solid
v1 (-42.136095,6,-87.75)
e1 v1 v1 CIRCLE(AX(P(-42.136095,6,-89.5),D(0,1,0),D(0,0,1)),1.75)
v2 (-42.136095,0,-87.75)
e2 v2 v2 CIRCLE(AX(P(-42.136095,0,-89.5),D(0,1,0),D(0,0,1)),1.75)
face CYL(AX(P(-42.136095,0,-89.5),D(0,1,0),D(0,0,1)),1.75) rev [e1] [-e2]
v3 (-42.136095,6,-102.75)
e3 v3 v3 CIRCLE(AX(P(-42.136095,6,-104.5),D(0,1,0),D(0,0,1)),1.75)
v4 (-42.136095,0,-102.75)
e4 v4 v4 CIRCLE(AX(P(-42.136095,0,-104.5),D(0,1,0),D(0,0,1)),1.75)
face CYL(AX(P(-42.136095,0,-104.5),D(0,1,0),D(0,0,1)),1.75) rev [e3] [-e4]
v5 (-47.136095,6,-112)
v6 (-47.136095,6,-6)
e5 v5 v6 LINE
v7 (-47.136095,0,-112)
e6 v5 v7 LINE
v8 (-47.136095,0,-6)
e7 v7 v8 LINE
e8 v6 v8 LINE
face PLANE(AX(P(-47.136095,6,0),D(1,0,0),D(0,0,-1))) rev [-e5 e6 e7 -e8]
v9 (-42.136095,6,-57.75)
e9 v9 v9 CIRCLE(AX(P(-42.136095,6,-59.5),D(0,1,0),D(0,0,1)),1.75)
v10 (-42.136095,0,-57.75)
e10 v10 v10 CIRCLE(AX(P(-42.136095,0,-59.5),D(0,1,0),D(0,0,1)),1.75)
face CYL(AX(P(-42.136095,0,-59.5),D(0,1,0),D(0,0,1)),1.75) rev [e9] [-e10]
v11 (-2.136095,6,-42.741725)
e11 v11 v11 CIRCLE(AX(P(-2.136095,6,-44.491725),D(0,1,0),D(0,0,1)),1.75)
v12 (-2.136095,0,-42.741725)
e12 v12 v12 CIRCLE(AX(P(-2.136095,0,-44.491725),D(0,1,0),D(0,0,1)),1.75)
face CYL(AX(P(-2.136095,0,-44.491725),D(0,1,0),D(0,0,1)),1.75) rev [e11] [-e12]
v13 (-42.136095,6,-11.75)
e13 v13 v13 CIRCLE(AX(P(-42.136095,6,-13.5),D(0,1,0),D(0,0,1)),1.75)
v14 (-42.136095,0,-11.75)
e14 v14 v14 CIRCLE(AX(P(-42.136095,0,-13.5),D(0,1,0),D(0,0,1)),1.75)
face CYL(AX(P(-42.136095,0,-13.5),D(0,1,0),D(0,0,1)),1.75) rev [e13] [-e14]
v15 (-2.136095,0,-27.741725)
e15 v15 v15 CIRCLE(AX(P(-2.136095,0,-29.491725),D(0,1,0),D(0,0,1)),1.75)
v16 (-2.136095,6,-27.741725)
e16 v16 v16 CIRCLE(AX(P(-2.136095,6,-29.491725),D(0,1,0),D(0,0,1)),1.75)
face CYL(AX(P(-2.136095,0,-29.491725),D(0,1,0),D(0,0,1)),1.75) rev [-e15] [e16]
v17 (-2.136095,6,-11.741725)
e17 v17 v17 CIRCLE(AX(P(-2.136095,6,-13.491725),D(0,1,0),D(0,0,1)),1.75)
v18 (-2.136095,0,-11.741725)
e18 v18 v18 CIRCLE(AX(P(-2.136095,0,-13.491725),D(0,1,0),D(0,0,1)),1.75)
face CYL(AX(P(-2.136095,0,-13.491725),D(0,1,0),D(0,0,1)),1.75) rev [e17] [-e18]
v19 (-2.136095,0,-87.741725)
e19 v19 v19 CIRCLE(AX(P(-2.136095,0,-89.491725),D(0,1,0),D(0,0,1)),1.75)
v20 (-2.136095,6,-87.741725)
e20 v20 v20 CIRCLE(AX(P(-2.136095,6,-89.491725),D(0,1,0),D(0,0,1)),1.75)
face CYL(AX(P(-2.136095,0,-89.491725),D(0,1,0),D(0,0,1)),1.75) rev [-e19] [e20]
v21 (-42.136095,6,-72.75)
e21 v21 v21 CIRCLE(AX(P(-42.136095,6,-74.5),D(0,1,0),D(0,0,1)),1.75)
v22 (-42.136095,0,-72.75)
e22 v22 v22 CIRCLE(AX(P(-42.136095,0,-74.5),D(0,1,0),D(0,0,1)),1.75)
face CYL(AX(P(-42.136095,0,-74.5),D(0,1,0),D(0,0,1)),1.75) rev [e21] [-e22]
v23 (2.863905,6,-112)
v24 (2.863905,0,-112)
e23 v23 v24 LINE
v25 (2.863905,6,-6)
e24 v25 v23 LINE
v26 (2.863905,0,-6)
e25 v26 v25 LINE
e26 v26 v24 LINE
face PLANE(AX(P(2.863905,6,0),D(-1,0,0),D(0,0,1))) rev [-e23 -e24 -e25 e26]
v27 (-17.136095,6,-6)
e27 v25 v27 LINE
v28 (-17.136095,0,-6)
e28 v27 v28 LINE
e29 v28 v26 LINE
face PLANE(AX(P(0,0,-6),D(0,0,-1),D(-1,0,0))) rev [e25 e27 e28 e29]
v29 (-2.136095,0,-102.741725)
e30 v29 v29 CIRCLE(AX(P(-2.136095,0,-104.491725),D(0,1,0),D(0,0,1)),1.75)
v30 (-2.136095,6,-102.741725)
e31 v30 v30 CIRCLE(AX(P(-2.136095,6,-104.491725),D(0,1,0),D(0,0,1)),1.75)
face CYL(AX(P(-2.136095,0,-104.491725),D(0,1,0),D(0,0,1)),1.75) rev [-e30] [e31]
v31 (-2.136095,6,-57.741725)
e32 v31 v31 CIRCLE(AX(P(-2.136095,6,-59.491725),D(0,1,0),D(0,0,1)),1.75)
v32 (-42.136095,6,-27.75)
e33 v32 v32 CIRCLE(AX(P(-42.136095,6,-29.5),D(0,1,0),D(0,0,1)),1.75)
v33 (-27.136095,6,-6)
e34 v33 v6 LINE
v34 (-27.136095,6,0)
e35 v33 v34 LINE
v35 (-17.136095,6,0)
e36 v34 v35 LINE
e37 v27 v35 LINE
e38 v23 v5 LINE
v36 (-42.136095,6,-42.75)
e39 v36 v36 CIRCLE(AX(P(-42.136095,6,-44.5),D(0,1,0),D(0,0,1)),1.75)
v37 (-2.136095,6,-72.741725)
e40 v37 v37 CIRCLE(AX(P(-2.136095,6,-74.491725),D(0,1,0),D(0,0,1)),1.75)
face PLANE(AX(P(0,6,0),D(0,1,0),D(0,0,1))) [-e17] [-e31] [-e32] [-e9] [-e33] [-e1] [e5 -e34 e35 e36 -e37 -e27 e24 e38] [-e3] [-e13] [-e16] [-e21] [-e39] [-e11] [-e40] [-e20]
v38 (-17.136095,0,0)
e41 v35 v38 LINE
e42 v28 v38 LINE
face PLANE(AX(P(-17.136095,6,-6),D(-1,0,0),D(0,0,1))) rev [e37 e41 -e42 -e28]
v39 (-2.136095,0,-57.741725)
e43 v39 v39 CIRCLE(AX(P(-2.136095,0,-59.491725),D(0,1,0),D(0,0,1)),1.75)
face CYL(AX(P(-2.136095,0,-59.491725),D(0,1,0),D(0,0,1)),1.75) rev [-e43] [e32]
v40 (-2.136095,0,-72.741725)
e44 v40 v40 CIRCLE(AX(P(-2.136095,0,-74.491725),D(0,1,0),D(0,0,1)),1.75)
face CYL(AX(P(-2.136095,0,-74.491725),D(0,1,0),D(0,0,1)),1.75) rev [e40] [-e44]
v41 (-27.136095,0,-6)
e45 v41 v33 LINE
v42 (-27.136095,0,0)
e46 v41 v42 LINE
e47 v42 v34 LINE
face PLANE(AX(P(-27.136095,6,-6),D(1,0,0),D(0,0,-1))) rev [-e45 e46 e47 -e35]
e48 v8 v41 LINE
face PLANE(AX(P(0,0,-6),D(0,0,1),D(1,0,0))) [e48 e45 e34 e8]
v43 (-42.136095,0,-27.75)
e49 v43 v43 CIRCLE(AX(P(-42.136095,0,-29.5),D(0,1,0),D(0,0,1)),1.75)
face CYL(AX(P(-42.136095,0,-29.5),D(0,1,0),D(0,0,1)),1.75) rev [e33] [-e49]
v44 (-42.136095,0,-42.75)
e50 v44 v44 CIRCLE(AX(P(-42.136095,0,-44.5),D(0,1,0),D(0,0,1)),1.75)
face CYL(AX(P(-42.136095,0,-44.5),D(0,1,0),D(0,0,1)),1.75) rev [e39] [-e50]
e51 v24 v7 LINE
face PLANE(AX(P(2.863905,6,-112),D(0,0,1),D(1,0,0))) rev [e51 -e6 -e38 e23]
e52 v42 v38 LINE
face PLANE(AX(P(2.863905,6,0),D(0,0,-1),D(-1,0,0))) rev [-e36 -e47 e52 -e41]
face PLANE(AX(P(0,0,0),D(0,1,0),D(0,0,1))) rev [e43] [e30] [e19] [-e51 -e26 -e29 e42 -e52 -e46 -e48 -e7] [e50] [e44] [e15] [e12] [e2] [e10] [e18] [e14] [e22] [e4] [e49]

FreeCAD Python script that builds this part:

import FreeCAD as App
import Part
import Sketcher

V = App.Vector


def add_polygon(sketch, points):
    """Adds a closed chain of lines whose ends are joined by coincident constraints."""
    first, n = sketch.GeometryCount, len(points)
    for a, b in zip(points, points[1:] + points[:1]):
        sketch.addGeometry(Part.LineSegment(App.Vector(*a, 0), App.Vector(*b, 0)), False)
    for i in range(n):
        sketch.addConstraint(Sketcher.Constraint("Coincident", first + i, 2, first + (i + 1) % n, 1))

doc = App.newDocument("Part")
params = doc.addObject("Spreadsheet::Sheet", "Params")
for row, (alias, value) in enumerate([
    ("sketch1_width", "50 mm"),
    ("sketch1_height", "112 mm"),
    ("pad1_length", "6 mm"),
    ("sketch2_width", "20 mm"),
    ("sketch2_height", "6 mm"),
    ("pocket1_length", "6 mm"),
    ("sketch3_diameter", "3.5 mm"),
    ("pocket2_length", "6 mm"),
], start=1):
    params.set(f"A{row}", alias)
    params.set(f"B{row}", "=" + value)
    params.setAlias(f"B{row}", alias)

body = doc.addObject("PartDesign::Body", "Body")

sketch1 = body.newObject("Sketcher::SketchObject", "Sketch")
sketch1.AttachmentSupport = (doc.getObject("XZ_Plane"), [""])
sketch1.MapMode = "FlatFace"
add_polygon(sketch1, [(-47, -112), (-47, 0), (3, 0), (3, -112)])
sketch1.addConstraint([
    Sketcher.Constraint("Vertical", 0),
    Sketcher.Constraint("Horizontal", 1),
    Sketcher.Constraint("Vertical", 2),
    Sketcher.Constraint("Horizontal", 3),
    Sketcher.Constraint("PointOnObject", 0, 2, -1),
    Sketcher.Constraint("DistanceX", 1, 1, 1, 2, 50.0),
    Sketcher.Constraint("DistanceY", 0, 1, 0, 2, 112.0),
    Sketcher.Constraint("DistanceX", 0, 2, -1, 1, 47.136095),
])
sketch1.setExpression("Constraints[9]", "Params.sketch1_width")
sketch1.setExpression("Constraints[10]", "Params.sketch1_height")
pad1 = body.newObject("PartDesign::Pad", "Pad")
pad1.Profile = sketch1
pad1.setExpression("Length", "Params.pad1_length")
pad1.Reversed = True

sketch2 = body.newObject("Sketcher::SketchObject", "Sketch001")
sketch2.AttachmentSupport = (doc.getObject("XY_Plane"), [""])
sketch2.MapMode = "FlatFace"
add_polygon(sketch2, [(-47, 6), (-47, 0), (-27, 0), (-27, 6)])
add_polygon(sketch2, [(-17, 6), (-17, 0), (3, 0), (3, 6)])
sketch2.addConstraint([
    Sketcher.Constraint("Vertical", 0),
    Sketcher.Constraint("Horizontal", 1),
    Sketcher.Constraint("Vertical", 2),
    Sketcher.Constraint("Horizontal", 3),
    Sketcher.Constraint("Vertical", 4),
    Sketcher.Constraint("Horizontal", 5),
    Sketcher.Constraint("Vertical", 6),
    Sketcher.Constraint("Horizontal", 7),
    Sketcher.Constraint("PointOnObject", 0, 2, -1),
    Sketcher.Constraint("PointOnObject", 4, 2, -1),
    Sketcher.Constraint("Horizontal", 3, 2, 6, 2),
    Sketcher.Constraint("Equal", 3, 5),
    Sketcher.Constraint("DistanceX", 1, 1, 1, 2, 20.0),
    Sketcher.Constraint("DistanceY", 0, 2, 0, 1, 6.0),
    Sketcher.Constraint("DistanceX", 1, 2, 4, 2, 10.0),
    Sketcher.Constraint("DistanceX", 0, 2, -1, 1, 47.136095),
])
sketch2.setExpression("Constraints[20]", "Params.sketch2_width")
sketch2.setExpression("Constraints[21]", "Params.sketch2_height")
pocket1 = body.newObject("PartDesign::Pocket", "Pocket")
pocket1.Profile = sketch2
pocket1.setExpression("Length", "Params.pocket1_length")

sketch3 = body.newObject("Sketcher::SketchObject", "Sketch002")
sketch3.AttachmentSupport = (doc.getObject("XZ_Plane"), [""])
sketch3.MapMode = "FlatFace"
sketch3.AttachmentOffset = App.Placement(V(0, 0, -6), App.Rotation())
sketch3.addGeometry([
    Part.Circle(V(-42.1, -104.5, 0), V(0, 0, 1), 1.8),
    Part.Circle(V(-42.1, -89.5, 0), V(0, 0, 1), 1.8),
    Part.Circle(V(-42.1, -74.5, 0), V(0, 0, 1), 1.8),
    Part.Circle(V(-42.1, -59.5, 0), V(0, 0, 1), 1.8),
    Part.Circle(V(-42.1, -44.5, 0), V(0, 0, 1), 1.8),
    Part.Circle(V(-42.1, -13.5, 0), V(0, 0, 1), 1.8),
    Part.Circle(V(-42.1, -29.5, 0), V(0, 0, 1), 1.8),
    Part.Circle(V(-2.1, -104.5, 0), V(0, 0, 1), 1.8),
    Part.Circle(V(-2.1, -89.5, 0), V(0, 0, 1), 1.8),
    Part.Circle(V(-2.1, -74.5, 0), V(0, 0, 1), 1.8),
    Part.Circle(V(-2.1, -59.5, 0), V(0, 0, 1), 1.8),
    Part.Circle(V(-2.1, -44.5, 0), V(0, 0, 1), 1.8),
    Part.Circle(V(-2.1, -13.5, 0), V(0, 0, 1), 1.8),
    Part.Circle(V(-2.1, -29.5, 0), V(0, 0, 1), 1.8),
], False)
sketch3.addConstraint([
    Sketcher.Constraint("Equal", 0, 1),
    Sketcher.Constraint("Equal", 1, 2),
    Sketcher.Constraint("Equal", 2, 3),
    Sketcher.Constraint("Equal", 3, 4),
    Sketcher.Constraint("Equal", 4, 5),
    Sketcher.Constraint("Equal", 5, 6),
    Sketcher.Constraint("Equal", 6, 7),
    Sketcher.Constraint("Equal", 7, 8),
    Sketcher.Constraint("Equal", 8, 9),
    Sketcher.Constraint("Equal", 9, 10),
    Sketcher.Constraint("Equal", 10, 11),
    Sketcher.Constraint("Equal", 11, 12),
    Sketcher.Constraint("Equal", 12, 13),
    Sketcher.Constraint("Vertical", 0, 3, 1, 3),
    Sketcher.Constraint("Vertical", 1, 3, 2, 3),
    Sketcher.Constraint("Vertical", 2, 3, 3, 3),
    Sketcher.Constraint("Vertical", 3, 3, 4, 3),
    Sketcher.Constraint("Vertical", 4, 3, 5, 3),
    Sketcher.Constraint("Vertical", 5, 3, 6, 3),
    Sketcher.Constraint("Vertical", 7, 3, 8, 3),
    Sketcher.Constraint("Vertical", 8, 3, 9, 3),
    Sketcher.Constraint("Vertical", 9, 3, 10, 3),
    Sketcher.Constraint("Vertical", 10, 3, 11, 3),
    Sketcher.Constraint("Vertical", 11, 3, 12, 3),
    Sketcher.Constraint("Vertical", 12, 3, 13, 3),
    Sketcher.Constraint("Diameter", 0, 3.5),
    Sketcher.Constraint("DistanceY", 0, 3, 1, 3, 15.0),
    Sketcher.Constraint("DistanceY", 1, 3, 2, 3, 15.0),
    Sketcher.Constraint("DistanceY", 2, 3, 3, 3, 15.0),
    Sketcher.Constraint("DistanceY", 3, 3, 4, 3, 15.0),
    Sketcher.Constraint("DistanceY", 4, 3, 5, 3, 31.0),
    Sketcher.Constraint("DistanceY", 4, 3, 6, 3, 15.0),
    Sketcher.Constraint("DistanceX", 0, 3, 7, 3, 40.0),
    Sketcher.Constraint("DistanceY", 7, 3, 8, 3, 15.0),
    Sketcher.Constraint("DistanceY", 8, 3, 9, 3, 15.0),
    Sketcher.Constraint("DistanceY", 9, 3, 10, 3, 15.0),
    Sketcher.Constraint("DistanceY", 10, 3, 11, 3, 15.0),
    Sketcher.Constraint("DistanceY", 11, 3, 12, 3, 31.0),
    Sketcher.Constraint("DistanceY", 11, 3, 13, 3, 15.0),
    Sketcher.Constraint("DistanceY", 0, 3, -1, 1, 104.5),
    Sketcher.Constraint("DistanceX", 0, 3, -1, 1, 42.136095),
    Sketcher.Constraint("DistanceY", 7, 3, -1, 1, 104.491725),
])
sketch3.setExpression("Constraints[25]", "Params.sketch3_diameter")
pocket2 = body.newObject("PartDesign::Pocket", "Pocket001")
pocket2.Profile = sketch3
pocket2.setExpression("Length", "Params.pocket2_length")
pocket2.Reversed = True

doc.recompute()
